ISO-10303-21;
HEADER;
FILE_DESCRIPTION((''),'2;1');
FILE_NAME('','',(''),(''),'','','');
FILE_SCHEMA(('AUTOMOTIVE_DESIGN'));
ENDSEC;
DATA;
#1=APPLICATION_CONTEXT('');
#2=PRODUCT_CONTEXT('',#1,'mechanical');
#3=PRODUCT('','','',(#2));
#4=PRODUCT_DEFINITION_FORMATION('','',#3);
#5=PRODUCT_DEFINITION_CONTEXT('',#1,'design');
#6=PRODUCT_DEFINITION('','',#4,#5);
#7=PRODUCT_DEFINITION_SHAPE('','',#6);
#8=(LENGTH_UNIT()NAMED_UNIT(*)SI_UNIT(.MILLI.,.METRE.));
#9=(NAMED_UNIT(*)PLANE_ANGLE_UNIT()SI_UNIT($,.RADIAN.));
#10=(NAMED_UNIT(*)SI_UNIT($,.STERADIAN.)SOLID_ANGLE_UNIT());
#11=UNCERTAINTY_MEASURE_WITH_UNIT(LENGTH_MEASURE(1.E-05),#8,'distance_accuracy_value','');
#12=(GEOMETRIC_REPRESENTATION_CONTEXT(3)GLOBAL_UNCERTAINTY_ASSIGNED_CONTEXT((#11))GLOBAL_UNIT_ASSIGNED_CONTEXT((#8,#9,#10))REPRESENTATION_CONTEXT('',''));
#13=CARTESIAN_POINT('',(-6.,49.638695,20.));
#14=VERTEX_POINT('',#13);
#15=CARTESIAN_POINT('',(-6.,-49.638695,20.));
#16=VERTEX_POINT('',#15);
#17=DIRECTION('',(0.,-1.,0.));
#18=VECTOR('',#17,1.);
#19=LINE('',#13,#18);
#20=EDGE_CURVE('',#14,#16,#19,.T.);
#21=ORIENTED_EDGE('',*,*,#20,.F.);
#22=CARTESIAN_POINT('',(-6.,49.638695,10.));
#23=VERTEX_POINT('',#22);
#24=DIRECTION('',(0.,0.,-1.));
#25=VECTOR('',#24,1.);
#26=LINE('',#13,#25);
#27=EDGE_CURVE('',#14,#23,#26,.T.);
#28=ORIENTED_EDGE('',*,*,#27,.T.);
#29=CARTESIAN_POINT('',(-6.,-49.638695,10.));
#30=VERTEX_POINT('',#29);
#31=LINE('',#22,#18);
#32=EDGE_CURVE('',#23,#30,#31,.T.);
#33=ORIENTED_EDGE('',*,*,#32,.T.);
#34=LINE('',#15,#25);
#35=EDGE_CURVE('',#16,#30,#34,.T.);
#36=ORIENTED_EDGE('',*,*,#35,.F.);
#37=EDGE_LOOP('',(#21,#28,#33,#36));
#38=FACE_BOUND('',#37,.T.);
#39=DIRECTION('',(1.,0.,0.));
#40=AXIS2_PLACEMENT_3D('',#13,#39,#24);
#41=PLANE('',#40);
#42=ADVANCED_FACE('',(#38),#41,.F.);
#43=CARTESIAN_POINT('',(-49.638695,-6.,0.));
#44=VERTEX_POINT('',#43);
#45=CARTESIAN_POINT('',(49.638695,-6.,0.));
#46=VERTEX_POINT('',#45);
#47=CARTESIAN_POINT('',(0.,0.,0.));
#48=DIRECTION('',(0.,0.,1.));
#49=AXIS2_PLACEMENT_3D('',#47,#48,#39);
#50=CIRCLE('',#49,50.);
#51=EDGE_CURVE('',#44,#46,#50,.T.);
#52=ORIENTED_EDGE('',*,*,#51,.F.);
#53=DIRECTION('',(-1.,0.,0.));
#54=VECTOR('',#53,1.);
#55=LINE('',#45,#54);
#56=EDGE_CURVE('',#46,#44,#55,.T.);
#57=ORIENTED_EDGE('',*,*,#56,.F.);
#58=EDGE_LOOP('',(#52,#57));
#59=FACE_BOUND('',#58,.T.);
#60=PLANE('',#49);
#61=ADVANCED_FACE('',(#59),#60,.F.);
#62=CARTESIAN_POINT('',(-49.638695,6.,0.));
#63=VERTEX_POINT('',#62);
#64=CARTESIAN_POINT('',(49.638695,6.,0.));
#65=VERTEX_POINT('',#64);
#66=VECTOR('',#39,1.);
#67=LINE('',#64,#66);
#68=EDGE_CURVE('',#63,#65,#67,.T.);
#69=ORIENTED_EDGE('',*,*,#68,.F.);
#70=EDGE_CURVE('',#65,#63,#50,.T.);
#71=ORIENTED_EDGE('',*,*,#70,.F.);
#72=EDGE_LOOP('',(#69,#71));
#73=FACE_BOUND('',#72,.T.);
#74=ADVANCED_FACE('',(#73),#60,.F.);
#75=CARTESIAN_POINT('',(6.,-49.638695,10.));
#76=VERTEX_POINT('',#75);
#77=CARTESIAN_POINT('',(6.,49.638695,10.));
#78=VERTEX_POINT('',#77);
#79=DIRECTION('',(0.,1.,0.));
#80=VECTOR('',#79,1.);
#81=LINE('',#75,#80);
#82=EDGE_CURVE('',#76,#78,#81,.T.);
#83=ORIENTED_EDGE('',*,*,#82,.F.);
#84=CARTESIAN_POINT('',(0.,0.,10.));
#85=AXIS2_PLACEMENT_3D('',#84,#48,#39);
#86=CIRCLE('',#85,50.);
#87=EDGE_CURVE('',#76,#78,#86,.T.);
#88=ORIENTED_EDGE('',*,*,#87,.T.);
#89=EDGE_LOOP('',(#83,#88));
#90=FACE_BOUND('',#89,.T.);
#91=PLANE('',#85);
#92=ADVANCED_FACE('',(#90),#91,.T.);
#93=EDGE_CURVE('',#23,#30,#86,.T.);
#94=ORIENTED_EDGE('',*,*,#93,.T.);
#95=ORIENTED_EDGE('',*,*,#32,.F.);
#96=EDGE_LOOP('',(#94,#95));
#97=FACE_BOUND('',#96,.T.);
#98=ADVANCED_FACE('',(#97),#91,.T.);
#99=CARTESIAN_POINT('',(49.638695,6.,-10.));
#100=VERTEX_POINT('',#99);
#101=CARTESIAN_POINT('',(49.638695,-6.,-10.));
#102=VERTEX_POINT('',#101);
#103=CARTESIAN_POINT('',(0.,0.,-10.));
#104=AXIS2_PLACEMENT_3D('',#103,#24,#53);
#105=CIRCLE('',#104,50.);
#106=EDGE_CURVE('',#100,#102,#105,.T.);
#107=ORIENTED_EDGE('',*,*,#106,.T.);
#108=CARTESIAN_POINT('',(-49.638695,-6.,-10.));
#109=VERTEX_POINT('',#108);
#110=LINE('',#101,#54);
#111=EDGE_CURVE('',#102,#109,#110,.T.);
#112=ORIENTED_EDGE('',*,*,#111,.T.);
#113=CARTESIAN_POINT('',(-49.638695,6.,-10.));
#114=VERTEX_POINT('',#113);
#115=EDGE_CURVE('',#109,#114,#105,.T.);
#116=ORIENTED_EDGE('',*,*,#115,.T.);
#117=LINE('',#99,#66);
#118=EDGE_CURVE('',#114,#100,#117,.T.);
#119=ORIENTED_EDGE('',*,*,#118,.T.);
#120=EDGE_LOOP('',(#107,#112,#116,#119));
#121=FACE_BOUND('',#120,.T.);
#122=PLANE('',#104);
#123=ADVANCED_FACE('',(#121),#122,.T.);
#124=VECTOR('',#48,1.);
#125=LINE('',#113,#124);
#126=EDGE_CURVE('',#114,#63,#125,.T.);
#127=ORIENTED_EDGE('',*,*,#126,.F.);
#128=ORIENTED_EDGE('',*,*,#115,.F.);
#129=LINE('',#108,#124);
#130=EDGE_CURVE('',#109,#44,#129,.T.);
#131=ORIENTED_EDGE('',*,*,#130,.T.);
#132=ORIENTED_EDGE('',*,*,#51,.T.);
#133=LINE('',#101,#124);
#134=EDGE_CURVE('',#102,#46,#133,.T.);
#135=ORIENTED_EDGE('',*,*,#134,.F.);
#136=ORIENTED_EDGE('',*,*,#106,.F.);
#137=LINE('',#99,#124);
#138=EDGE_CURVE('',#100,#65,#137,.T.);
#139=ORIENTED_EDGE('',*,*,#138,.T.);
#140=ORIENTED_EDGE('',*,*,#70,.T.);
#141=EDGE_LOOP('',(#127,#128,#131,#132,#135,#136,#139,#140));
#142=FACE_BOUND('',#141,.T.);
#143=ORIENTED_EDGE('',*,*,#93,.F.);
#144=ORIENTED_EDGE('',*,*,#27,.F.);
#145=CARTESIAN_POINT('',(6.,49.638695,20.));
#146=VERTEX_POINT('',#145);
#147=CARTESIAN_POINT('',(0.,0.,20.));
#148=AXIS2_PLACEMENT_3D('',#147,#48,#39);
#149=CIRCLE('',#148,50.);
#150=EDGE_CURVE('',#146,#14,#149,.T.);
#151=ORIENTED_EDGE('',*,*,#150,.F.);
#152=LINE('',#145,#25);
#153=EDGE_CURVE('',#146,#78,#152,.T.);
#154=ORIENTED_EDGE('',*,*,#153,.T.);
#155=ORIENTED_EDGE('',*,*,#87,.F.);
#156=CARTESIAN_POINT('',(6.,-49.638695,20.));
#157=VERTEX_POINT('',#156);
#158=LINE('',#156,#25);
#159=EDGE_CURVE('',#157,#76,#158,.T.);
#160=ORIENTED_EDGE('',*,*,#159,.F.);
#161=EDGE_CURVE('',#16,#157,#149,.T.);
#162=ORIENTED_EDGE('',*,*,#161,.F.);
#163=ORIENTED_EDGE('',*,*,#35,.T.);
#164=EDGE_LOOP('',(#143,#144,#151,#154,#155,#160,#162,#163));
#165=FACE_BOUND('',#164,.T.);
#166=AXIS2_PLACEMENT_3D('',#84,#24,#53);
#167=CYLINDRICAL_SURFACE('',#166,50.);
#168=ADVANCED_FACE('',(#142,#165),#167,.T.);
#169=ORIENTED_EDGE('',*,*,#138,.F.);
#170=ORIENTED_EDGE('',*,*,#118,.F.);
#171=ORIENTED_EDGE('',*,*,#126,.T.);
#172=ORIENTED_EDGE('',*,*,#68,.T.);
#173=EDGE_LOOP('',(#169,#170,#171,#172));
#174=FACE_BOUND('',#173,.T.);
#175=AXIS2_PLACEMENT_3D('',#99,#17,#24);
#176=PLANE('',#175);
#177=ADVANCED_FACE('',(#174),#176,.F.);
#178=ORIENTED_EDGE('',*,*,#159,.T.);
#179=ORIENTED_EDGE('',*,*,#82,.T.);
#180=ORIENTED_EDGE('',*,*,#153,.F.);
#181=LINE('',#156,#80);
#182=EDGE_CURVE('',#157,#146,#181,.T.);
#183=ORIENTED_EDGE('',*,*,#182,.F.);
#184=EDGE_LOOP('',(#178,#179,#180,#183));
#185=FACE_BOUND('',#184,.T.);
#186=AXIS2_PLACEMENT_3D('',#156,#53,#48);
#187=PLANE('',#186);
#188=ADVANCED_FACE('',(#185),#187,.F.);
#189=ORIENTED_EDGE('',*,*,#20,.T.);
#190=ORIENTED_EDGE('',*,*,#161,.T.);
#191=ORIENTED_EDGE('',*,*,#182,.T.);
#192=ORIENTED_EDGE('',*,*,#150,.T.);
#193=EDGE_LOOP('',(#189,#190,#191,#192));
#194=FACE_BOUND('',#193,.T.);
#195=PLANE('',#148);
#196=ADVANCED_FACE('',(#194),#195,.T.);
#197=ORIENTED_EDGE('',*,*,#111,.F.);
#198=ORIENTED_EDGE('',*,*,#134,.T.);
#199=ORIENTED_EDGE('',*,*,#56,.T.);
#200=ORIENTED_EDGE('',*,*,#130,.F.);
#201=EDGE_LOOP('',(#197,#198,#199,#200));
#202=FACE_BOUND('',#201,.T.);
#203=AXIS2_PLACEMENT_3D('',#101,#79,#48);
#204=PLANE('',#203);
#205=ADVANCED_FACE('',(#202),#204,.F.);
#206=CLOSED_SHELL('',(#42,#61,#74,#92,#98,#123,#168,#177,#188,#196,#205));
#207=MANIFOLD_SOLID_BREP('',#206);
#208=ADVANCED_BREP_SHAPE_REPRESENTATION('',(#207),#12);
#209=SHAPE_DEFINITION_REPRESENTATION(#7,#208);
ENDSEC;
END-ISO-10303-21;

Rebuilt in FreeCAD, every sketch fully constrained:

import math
import FreeCAD as App
import Part
import Sketcher

V = App.Vector
Q = App.Units.Quantity

doc = App.newDocument("Part")
params = doc.addObject("Spreadsheet::Sheet", "Params")
for row, (alias, value) in enumerate([
    ("sketch1_diameter", "100 mm"),
    ("pad1_length", "10 mm"),
    ("sketch2_radius", "50 mm"),
    ("pad2_length", "10 mm"),
    ("sketch3_radius", "50 mm"),
    ("pad3_length", "10 mm"),
], start=1):
    params.set(f"A{row}", alias)
    params.set(f"B{row}", "=" + value)
    params.setAlias(f"B{row}", alias)

body = doc.addObject("PartDesign::Body", "Body")

sketch1 = doc.addObject("Sketcher::SketchObject", "Sketch")
body.addObject(sketch1)
sketch1.AttachmentSupport = (doc.XY_Plane, [""])
sketch1.MapMode = "FlatFace"
sketch1.addGeometry(Part.Circle(V(0, 0, 0), V(0, 0, 1), 50), False)
sketch1.addConstraint(Sketcher.Constraint("Coincident", 0, 3, -1, 1))
sketch1.addConstraint(Sketcher.Constraint("Diameter", 0, Q("100 mm")))
sketch1.setExpression("Constraints[1]", "Params.sketch1_diameter")
pad1 = doc.addObject("PartDesign::Pad", "Pad")
body.addObject(pad1)
pad1.Profile = sketch1
pad1.setExpression("Length", "Params.pad1_length")

sketch2 = doc.addObject("Sketcher::SketchObject", "Sketch001")
body.addObject(sketch2)
sketch2.AttachmentSupport = (doc.XY_Plane, [""])
sketch2.MapMode = "FlatFace"
sketch2.AttachmentOffset = App.Placement(V(0, 0, -10), App.Rotation())
sketch2.addGeometry(Part.LineSegment(V(-50, 6, 0), V(50, 6, 0)), False)
sketch2.addGeometry(Part.ArcOfCircle(Part.Circle(V(0, 0, 0), V(0, 0, 1), 50), math.radians(-6.89), math.radians(6.89)), False)
sketch2.addGeometry(Part.LineSegment(V(50, -6, 0), V(-50, -6, 0)), False)
sketch2.addGeometry(Part.ArcOfCircle(Part.Circle(V(0, 0, 0), V(0, 0, 1), 50), math.radians(173.11), math.radians(186.89)), False)
sketch2.addConstraint(Sketcher.Constraint("Coincident", 0, 2, 1, 2))
sketch2.addConstraint(Sketcher.Constraint("Coincident", 1, 1, 2, 1))
sketch2.addConstraint(Sketcher.Constraint("Coincident", 2, 2, 3, 2))
sketch2.addConstraint(Sketcher.Constraint("Coincident", 3, 1, 0, 1))
sketch2.addConstraint(Sketcher.Constraint("Horizontal", 0))
sketch2.addConstraint(Sketcher.Constraint("Horizontal", 2))
sketch2.addConstraint(Sketcher.Constraint("Coincident", 1, 3, -1, 1))
sketch2.addConstraint(Sketcher.Constraint("Coincident", 3, 3, -1, 1))
sketch2.addConstraint(Sketcher.Constraint("Equal", 1, 3))
sketch2.addConstraint(Sketcher.Constraint("Vertical", 0, 2, 1, 1))
sketch2.addConstraint(Sketcher.Constraint("Radius", 1, Q("50 mm")))
sketch2.addConstraint(Sketcher.Constraint("DistanceY", -1, 1, 0, 2, Q("6 mm")))
sketch2.setExpression("Constraints[10]", "Params.sketch2_radius")
pad2 = doc.addObject("PartDesign::Pad", "Pad001")
body.addObject(pad2)
pad2.Profile = sketch2
pad2.setExpression("Length", "Params.pad2_length")

sketch3 = doc.addObject("Sketcher::SketchObject", "Sketch002")
body.addObject(sketch3)
sketch3.AttachmentSupport = (doc.XY_Plane, [""])
sketch3.MapMode = "FlatFace"
sketch3.AttachmentOffset = App.Placement(V(0, 0, 10), App.Rotation())
sketch3.addGeometry(Part.LineSegment(V(-6, 50, 0), V(-6, -50, 0)), False)
sketch3.addGeometry(Part.ArcOfCircle(Part.Circle(V(0, 0, 0), V(0, 0, 1), 50), math.radians(-96.89), math.radians(-83.11)), False)
sketch3.addGeometry(Part.LineSegment(V(6, -50, 0), V(6, 50, 0)), False)
sketch3.addGeometry(Part.ArcOfCircle(Part.Circle(V(0, 0, 0), V(0, 0, 1), 50), math.radians(83.11), math.radians(96.89)), False)
sketch3.addConstraint(Sketcher.Constraint("Coincident", 0, 2, 1, 1))
sketch3.addConstraint(Sketcher.Constraint("Coincident", 1, 2, 2, 1))
sketch3.addConstraint(Sketcher.Constraint("Coincident", 2, 2, 3, 1))
sketch3.addConstraint(Sketcher.Constraint("Coincident", 3, 2, 0, 1))
sketch3.addConstraint(Sketcher.Constraint("Vertical", 0))
sketch3.addConstraint(Sketcher.Constraint("Vertical", 2))
sketch3.addConstraint(Sketcher.Constraint("Coincident", 1, 3, -1, 1))
sketch3.addConstraint(Sketcher.Constraint("Coincident", 3, 3, -1, 1))
sketch3.addConstraint(Sketcher.Constraint("Equal", 1, 3))
sketch3.addConstraint(Sketcher.Constraint("Horizontal", 0, 2, 1, 2))
sketch3.addConstraint(Sketcher.Constraint("Radius", 1, Q("50 mm")))
sketch3.addConstraint(Sketcher.Constraint("DistanceX", 0, 2, -1, 1, Q("6 mm")))
sketch3.setExpression("Constraints[10]", "Params.sketch3_radius")
pad3 = doc.addObject("PartDesign::Pad", "Pad002")
body.addObject(pad3)
pad3.Profile = sketch3
pad3.setExpression("Length", "Params.pad3_length")

doc.recompute()
